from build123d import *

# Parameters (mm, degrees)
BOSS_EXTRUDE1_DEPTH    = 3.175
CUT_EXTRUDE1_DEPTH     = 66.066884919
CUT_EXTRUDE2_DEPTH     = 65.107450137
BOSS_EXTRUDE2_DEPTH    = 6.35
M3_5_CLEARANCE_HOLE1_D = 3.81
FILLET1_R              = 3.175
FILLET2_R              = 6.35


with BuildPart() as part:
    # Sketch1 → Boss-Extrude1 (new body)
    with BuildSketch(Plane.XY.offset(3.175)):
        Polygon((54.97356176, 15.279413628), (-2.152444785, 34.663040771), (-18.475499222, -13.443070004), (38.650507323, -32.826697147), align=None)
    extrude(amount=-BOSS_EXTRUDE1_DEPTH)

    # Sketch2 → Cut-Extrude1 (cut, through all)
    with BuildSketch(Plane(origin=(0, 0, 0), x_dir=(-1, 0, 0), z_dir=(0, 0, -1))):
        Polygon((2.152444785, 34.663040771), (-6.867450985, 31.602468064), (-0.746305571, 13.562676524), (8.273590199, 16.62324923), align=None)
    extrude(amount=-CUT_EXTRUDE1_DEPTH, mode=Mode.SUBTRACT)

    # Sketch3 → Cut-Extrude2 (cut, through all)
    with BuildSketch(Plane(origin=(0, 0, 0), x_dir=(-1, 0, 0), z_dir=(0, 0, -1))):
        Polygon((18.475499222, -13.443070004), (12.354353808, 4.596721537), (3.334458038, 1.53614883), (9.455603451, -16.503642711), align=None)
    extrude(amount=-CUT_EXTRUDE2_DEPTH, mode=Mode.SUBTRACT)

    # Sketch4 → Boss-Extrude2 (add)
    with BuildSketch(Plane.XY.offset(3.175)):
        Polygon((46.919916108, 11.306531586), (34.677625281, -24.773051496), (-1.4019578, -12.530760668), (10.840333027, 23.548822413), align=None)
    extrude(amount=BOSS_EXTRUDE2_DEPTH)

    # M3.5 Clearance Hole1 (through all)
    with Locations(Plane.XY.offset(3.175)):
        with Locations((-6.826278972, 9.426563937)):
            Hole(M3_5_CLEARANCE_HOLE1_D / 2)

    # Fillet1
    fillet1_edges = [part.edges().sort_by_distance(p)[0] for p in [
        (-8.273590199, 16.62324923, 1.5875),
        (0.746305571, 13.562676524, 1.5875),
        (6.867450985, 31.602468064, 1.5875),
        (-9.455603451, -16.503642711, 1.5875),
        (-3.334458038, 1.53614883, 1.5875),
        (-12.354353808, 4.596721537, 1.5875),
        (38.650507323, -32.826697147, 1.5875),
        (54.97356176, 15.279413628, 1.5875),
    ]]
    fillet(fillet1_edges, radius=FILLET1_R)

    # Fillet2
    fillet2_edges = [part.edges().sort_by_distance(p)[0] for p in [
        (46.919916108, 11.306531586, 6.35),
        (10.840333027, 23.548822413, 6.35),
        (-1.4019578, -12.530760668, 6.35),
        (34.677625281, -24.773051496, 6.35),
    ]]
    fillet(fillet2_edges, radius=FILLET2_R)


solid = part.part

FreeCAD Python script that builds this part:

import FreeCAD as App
import Part
import Sketcher

V = App.Vector
Q = App.Units.Quantity


def edges_at(feature, points):
    """Names of the edges that pass closest to the given points."""
    edges = feature.Shape.Edges
    near = lambda p: min(range(len(edges)), key=lambda i: edges[i].distToShape(Part.Vertex(*p))[0])
    return sorted({f"Edge{near(p) + 1}" for p in points})

doc = App.newDocument("Part")
params = doc.addObject("Spreadsheet::Sheet", "Params")
for row, (alias, value) in enumerate([
    ("sketch1_length", "2 in"),
    ("sketch1_length2", "2.375 in"),
    ("pad1_length", "0.125 in"),
    ("sketch2_length", "0.75 in"),
    ("sketch2_length2", "0.375 in"),
    ("sketch3_length", "0.75 in"),
    ("sketch3_length2", "0.375 in"),
    ("sketch4_length", "1.5 in"),
    ("pad2_length", "0.25 in"),
    ("sketch5_diameter", "0.15 in"),
    ("hole_diameter", "0.15 in"),
    ("fillet_radius", "0.125 in"),
    ("fillet2_radius", "0.25 in"),
], start=1):
    params.set(f"A{row}", alias)
    params.set(f"B{row}", "=" + value)
    params.setAlias(f"B{row}", alias)

body = doc.addObject("PartDesign::Body", "Body")

sketch1 = doc.addObject("Sketcher::SketchObject", "Sketch")
body.addObject(sketch1)
sketch1.AttachmentSupport = (doc.XY_Plane, [""])
sketch1.MapMode = "FlatFace"
sketch1.AttachmentOffset = App.Placement(V(0, 0, 0.125 * 25.4), App.Rotation())
sketch1.addGeometry([
    Part.LineSegment(V(55, 15, 0), V(-2, 35, 0)),
    Part.LineSegment(V(-2, 35, 0), V(-18, -13, 0)),
    Part.LineSegment(V(-18, -13, 0), V(39, -33, 0)),
    Part.LineSegment(V(39, -33, 0), V(55, 15, 0)),
], False)
sketch1.addConstraint([
    Sketcher.Constraint("Coincident", 0, 2, 1, 1),
    Sketcher.Constraint("Coincident", 1, 2, 2, 1),
    Sketcher.Constraint("Coincident", 2, 2, 3, 1),
    Sketcher.Constraint("Coincident", 3, 2, 0, 1),
    Sketcher.Constraint("Perpendicular", 0, 1),
    Sketcher.Constraint("Perpendicular", 1, 2),
    Sketcher.Constraint("Perpendicular", 2, 3),
    Sketcher.Constraint("Distance", 1, Q("2 in")),
    Sketcher.Constraint("Distance", 0, Q("2.375 in")),
    Sketcher.Constraint("DistanceX", 1, 2, -1, 1, Q("18.475499 mm")),
    Sketcher.Constraint("DistanceY", -1, 1, 0, 2, Q("34.663041 mm")),
    Sketcher.Constraint("DistanceY", 1, 2, -1, 1, Q("13.44307 mm")),
])
sketch1.setExpression("Constraints[7]", "Params.sketch1_length")
sketch1.setExpression("Constraints[8]", "Params.sketch1_length2")
pad1 = doc.addObject("PartDesign::Pad", "Pad")
body.addObject(pad1)
pad1.Profile = sketch1
pad1.setExpression("Length", "Params.pad1_length")
pad1.Reversed = True

sketch2 = doc.addObject("Sketcher::SketchObject", "Sketch001")
body.addObject(sketch2)
sketch2.AttachmentSupport = (doc.XY_Plane, [""])
sketch2.MapMode = "FlatFace"
sketch2.addGeometry([
    Part.LineSegment(V(-2, 35, 0), V(7, 32, 0)),
    Part.LineSegment(V(7, 32, 0), V(1, 14, 0)),
    Part.LineSegment(V(1, 14, 0), V(-8, 17, 0)),
    Part.LineSegment(V(-8, 17, 0), V(-2, 35, 0)),
], False)
sketch2.addConstraint([
    Sketcher.Constraint("Coincident", 0, 2, 1, 1),
    Sketcher.Constraint("Coincident", 1, 2, 2, 1),
    Sketcher.Constraint("Coincident", 2, 2, 3, 1),
    Sketcher.Constraint("Coincident", 3, 2, 0, 1),
    Sketcher.Constraint("Perpendicular", 0, 1),
    Sketcher.Constraint("Perpendicular", 1, 2),
    Sketcher.Constraint("Perpendicular", 2, 3),
    Sketcher.Constraint("Distance", 1, Q("0.75 in")),
    Sketcher.Constraint("Distance", 0, Q("0.375 in")),
    Sketcher.Constraint("DistanceX", -1, 1, 0, 2, Q("6.867451 mm")),
    Sketcher.Constraint("DistanceY", -1, 1, 0, 2, Q("31.602468 mm")),
    Sketcher.Constraint("DistanceX", 2, 2, -1, 1, Q("8.27359 mm")),
])
sketch2.setExpression("Constraints[7]", "Params.sketch2_length")
sketch2.setExpression("Constraints[8]", "Params.sketch2_length2")
pocket1 = doc.addObject("PartDesign::Pocket", "Pocket")
body.addObject(pocket1)
pocket1.Profile = sketch2
pocket1.Type = "ThroughAll"
pocket1.Reversed = True

sketch3 = doc.addObject("Sketcher::SketchObject", "Sketch002")
body.addObject(sketch3)
sketch3.AttachmentSupport = (doc.XY_Plane, [""])
sketch3.MapMode = "FlatFace"
sketch3.addGeometry([
    Part.LineSegment(V(-18, -13, 0), V(-12, 5, 0)),
    Part.LineSegment(V(-12, 5, 0), V(-3, 2, 0)),
    Part.LineSegment(V(-3, 2, 0), V(-9, -17, 0)),
    Part.LineSegment(V(-9, -17, 0), V(-18, -13, 0)),
], False)
sketch3.addConstraint([
    Sketcher.Constraint("Coincident", 0, 2, 1, 1),
    Sketcher.Constraint("Coincident", 1, 2, 2, 1),
    Sketcher.Constraint("Coincident", 2, 2, 3, 1),
    Sketcher.Constraint("Coincident", 3, 2, 0, 1),
    Sketcher.Constraint("Perpendicular", 0, 1),
    Sketcher.Constraint("Perpendicular", 1, 2),
    Sketcher.Constraint("Perpendicular", 2, 3),
    Sketcher.Constraint("Distance", 0, Q("0.75 in")),
    Sketcher.Constraint("Distance", 1, Q("0.375 in")),
    Sketcher.Constraint("DistanceX", 3, 2, -1, 1, Q("18.475499 mm")),
    Sketcher.Constraint("DistanceY", -1, 1, 0, 2, Q("4.596722 mm")),
    Sketcher.Constraint("DistanceX", 1, 2, -1, 1, Q("3.334458 mm")),
])
sketch3.setExpression("Constraints[7]", "Params.sketch3_length")
sketch3.setExpression("Constraints[8]", "Params.sketch3_length2")
pocket2 = doc.addObject("PartDesign::Pocket", "Pocket001")
body.addObject(pocket2)
pocket2.Profile = sketch3
pocket2.Type = "ThroughAll"
pocket2.Reversed = True

sketch4 = doc.addObject("Sketcher::SketchObject", "Sketch003")
body.addObject(sketch4)
sketch4.AttachmentSupport = (doc.XY_Plane, [""])
sketch4.MapMode = "FlatFace"
sketch4.AttachmentOffset = App.Placement(V(0, 0, 0.125 * 25.4), App.Rotation())
sketch4.addGeometry([
    Part.LineSegment(V(35, -25, 0), V(47, 11, 0)),
    Part.LineSegment(V(47, 11, 0), V(11, 24, 0)),
    Part.LineSegment(V(11, 24, 0), V(-1, -13, 0)),
    Part.LineSegment(V(-1, -13, 0), V(35, -25, 0)),
], False)
sketch4.addConstraint([
    Sketcher.Constraint("Coincident", 0, 2, 1, 1),
    Sketcher.Constraint("Coincident", 1, 2, 2, 1),
    Sketcher.Constraint("Coincident", 2, 2, 3, 1),
    Sketcher.Constraint("Coincident", 3, 2, 0, 1),
    Sketcher.Constraint("Perpendicular", 0, 1),
    Sketcher.Constraint("Perpendicular", 1, 2),
    Sketcher.Constraint("Perpendicular", 2, 3),
    Sketcher.Constraint("Equal", 0, 1),
    Sketcher.Constraint("Distance", 0, Q("1.5 in")),
    Sketcher.Constraint("DistanceY", -1, 1, 0, 2, Q("11.306532 mm")),
    Sketcher.Constraint("DistanceY", 2, 2, -1, 1, Q("12.530761 mm")),
    Sketcher.Constraint("DistanceX", -1, 1, 0, 2, Q("46.919916 mm")),
])
sketch4.setExpression("Constraints[8]", "Params.sketch4_length")
pad2 = doc.addObject("PartDesign::Pad", "Pad001")
body.addObject(pad2)
pad2.Profile = sketch4
pad2.setExpression("Length", "Params.pad2_length")

sketch5 = doc.addObject("Sketcher::SketchObject", "Sketch004")
body.addObject(sketch5)
sketch5.AttachmentSupport = (doc.XY_Plane, [""])
sketch5.MapMode = "FlatFace"
sketch5.AttachmentOffset = App.Placement(V(0, 0, 0.125 * 25.4), App.Rotation())
sketch5.addGeometry(Part.Circle(V(-6.8, 9.4, 0), V(0, 0, 1), 1.9), False)
sketch5.addConstraint([
    Sketcher.Constraint("Diameter", 0, Q("0.15 in")),
    Sketcher.Constraint("DistanceX", 0, 3, -1, 1, Q("6.826279 mm")),
    Sketcher.Constraint("DistanceY", -1, 1, 0, 3, Q("9.426564 mm")),
])
sketch5.setExpression("Constraints[0]", "Params.sketch5_diameter")
doc.recompute()
hole = doc.addObject("PartDesign::Hole", "Hole")
body.addObject(hole)
hole.Profile = sketch5
hole.ThreadType = "None"
hole.setExpression("Diameter", "Params.hole_diameter")
hole.DepthType = "ThroughAll"
doc.recompute()

fillet = doc.addObject("PartDesign::Fillet", "Fillet")
body.addObject(fillet)
fillet.Base = (hole, edges_at(hole, [
    (-8.274, 16.623, 1.587),
    (0.746, 13.563, 1.587),
    (6.867, 31.602, 1.587),
    (-9.456, -16.504, 1.587),
    (-3.334, 1.536, 1.587),
    (-12.354, 4.597, 1.587),
    (38.651, -32.827, 1.587),
    (54.974, 15.279, 1.587),
]))
fillet.setExpression("Radius", "Params.fillet_radius")
doc.recompute()

fillet2 = doc.addObject("PartDesign::Fillet", "Fillet001")
body.addObject(fillet2)
fillet2.Base = (fillet, edges_at(fillet, [
    (46.92, 11.307, 6.35),
    (10.84, 23.549, 6.35),
    (-1.402, -12.531, 6.35),
    (34.678, -24.773, 6.35),
]))
fillet2.setExpression("Radius", "Params.fillet2_radius")

doc.recompute()
